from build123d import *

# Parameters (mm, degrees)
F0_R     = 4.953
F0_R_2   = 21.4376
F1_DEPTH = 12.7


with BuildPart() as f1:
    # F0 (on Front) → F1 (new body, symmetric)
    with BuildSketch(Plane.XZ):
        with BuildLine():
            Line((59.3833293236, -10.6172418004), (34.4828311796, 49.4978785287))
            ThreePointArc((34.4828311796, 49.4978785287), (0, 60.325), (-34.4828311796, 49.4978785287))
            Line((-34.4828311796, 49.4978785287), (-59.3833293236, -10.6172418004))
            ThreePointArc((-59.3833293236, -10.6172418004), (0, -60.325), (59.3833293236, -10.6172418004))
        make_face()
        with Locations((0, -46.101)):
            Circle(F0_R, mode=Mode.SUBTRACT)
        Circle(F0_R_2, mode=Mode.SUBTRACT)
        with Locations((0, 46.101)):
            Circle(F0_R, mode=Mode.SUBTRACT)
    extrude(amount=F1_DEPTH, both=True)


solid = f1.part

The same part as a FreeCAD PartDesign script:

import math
import FreeCAD as App
import Part
import Sketcher

V = App.Vector
Q = App.Units.Quantity

doc = App.newDocument("Part")
body = doc.addObject("PartDesign::Body", "Body")

# Sketch on XZ plane
sketch1 = doc.addObject("Sketcher::SketchObject", "Sketch")
body.addObject(sketch1)
sketch1.AttachmentSupport = (doc.XZ_Plane, [""])
sketch1.MapMode = "FlatFace"
sketch1.addGeometry([
    Part.LineSegment(V(59.383329, -10.617242, 0), V(34.482831, 49.497879, 0)),  # 0
    Part.ArcOfCircle(Part.Circle(V(0, 0, 0), V(0, 0, 1), 60.325), math.radians(55.136898), math.radians(124.863102)),  # 1
    Part.LineSegment(V(-34.482831, 49.497879, 0), V(-59.383329, -10.617242, 0)),  # 2
    Part.ArcOfCircle(Part.Circle(V(0, 0, 0), V(0, 0, 1), 60.325), math.radians(-169.863102), math.radians(-10.136898)),  # 3
    Part.Circle(V(0, -46.101, 0), V(0, 0, 1), 4.953),  # 4
    Part.Circle(V(0, 0, 0), V(0, 0, 1), 21.4376),  # 5
    Part.Circle(V(0, 46.101, 0), V(0, 0, 1), 4.953),  # 6
], False)
sketch1.addConstraint([
    Sketcher.Constraint("Coincident", 0, 2, 1, 1),
    Sketcher.Constraint("Coincident", 1, 2, 2, 1),
    Sketcher.Constraint("Coincident", 2, 2, 3, 1),
    Sketcher.Constraint("Coincident", 3, 2, 0, 1),
    Sketcher.Constraint("Coincident", 1, 3, -1, 1),
    Sketcher.Constraint("Coincident", 3, 3, -1, 1),
    Sketcher.Constraint("Coincident", 5, 3, -1, 1),
    Sketcher.Constraint("Equal", 1, 3),
    Sketcher.Constraint("Equal", 4, 6),
    Sketcher.Constraint("Symmetric", 4, 3, 6, 3, -1, 1),
    Sketcher.Constraint("PointOnObject", 4, 3, -2),
    Sketcher.Constraint("Horizontal", 0, 2, 1, 2),
    Sketcher.Constraint("Horizontal", 2, 2, 3, 2),
    Sketcher.Constraint("Diameter", 4, Q("0.39 in")),
    Sketcher.Constraint("Diameter", 5, Q("1.688 in")),
    Sketcher.Constraint("Radius", 1, Q("2.375 in")),
    Sketcher.Constraint("Angle", 0, Q("112.5 deg")),
    Sketcher.Constraint("DistanceY", 4, 3, 6, 3, Q("3.63 in")),
    Sketcher.Constraint("DistanceX", 2, 2, 1, 2, 24.900498),
])
pad1 = doc.addObject("PartDesign::Pad", "Pad")
body.addObject(pad1)
pad1.Profile = sketch1
pad1.Length = Q("1 in")
pad1.Midplane = True

doc.recompute()
